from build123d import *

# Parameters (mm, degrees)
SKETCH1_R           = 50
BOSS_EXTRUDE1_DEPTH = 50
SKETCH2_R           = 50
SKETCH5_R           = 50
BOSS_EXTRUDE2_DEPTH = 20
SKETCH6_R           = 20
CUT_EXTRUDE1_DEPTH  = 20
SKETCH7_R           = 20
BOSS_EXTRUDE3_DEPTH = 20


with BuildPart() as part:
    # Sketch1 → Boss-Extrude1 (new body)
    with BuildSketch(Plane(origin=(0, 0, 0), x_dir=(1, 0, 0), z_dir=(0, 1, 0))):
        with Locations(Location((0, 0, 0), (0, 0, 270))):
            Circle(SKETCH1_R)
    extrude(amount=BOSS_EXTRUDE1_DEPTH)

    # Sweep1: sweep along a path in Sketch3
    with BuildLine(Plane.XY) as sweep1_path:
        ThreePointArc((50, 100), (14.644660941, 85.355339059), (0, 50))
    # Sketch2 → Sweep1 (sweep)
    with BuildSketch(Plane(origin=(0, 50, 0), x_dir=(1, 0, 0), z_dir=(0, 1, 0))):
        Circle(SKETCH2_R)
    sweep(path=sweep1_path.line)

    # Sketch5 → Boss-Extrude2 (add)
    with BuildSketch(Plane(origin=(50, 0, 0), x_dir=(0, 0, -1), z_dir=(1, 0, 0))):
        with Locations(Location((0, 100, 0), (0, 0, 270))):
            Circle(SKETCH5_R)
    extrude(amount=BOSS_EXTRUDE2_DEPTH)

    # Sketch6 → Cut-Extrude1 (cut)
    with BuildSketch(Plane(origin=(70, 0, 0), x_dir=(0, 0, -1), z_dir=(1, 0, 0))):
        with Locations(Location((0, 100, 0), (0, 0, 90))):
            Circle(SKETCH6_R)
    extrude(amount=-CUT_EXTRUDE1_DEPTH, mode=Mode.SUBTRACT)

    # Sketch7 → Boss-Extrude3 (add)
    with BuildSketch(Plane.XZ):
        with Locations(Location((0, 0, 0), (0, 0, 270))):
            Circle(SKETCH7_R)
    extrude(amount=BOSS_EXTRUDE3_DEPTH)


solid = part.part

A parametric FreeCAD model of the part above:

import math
import FreeCAD as App
import Part
import Sketcher

doc = App.newDocument("Part")
params = doc.addObject("Spreadsheet::Sheet", "Params")
for row, (alias, value) in enumerate([
    ("sketch1_diameter", "100 mm"),
    ("pad1_length", "50 mm"),
    ("sketch2_diameter", "100 mm"),
    ("sketch3_radius", "50 mm"),
    ("sketch4_diameter", "100 mm"),
    ("pad2_length", "20 mm"),
    ("sketch5_diameter", "40 mm"),
    ("pocket1_length", "20 mm"),
    ("sketch6_diameter", "40 mm"),
    ("pad3_length", "20 mm"),
], start=1):
    params.set(f"A{row}", alias)
    params.set(f"B{row}", "=" + value)
    params.setAlias(f"B{row}", alias)

body = doc.addObject("PartDesign::Body", "Body")

# Sketch on XZ plane
sketch1 = doc.addObject("Sketcher::SketchObject", "Sketch")
body.addObject(sketch1)
sketch1.AttachmentSupport = (doc.XZ_Plane, [""])
sketch1.MapMode = "FlatFace"
sketch1.addGeometry(Part.Circle(App.Vector(0, 0, 0), App.Vector(0, 0, 1), 50), False)
sketch1.addConstraint(Sketcher.Constraint("Coincident", 0, 3, -1, 1))
sketch1.addConstraint(Sketcher.Constraint("Diameter", 0, 100.0))
sketch1.setExpression("Constraints[1]", "Params.sketch1_diameter")
pad1 = doc.addObject("PartDesign::Pad", "Pad")
body.addObject(pad1)
pad1.Profile = sketch1
pad1.setExpression("Length", "Params.pad1_length")
pad1.Reversed = True

# Sketch on XZ plane
sketch2 = doc.addObject("Sketcher::SketchObject", "Sketch001")
body.addObject(sketch2)
sketch2.AttachmentSupport = (doc.XZ_Plane, [""])
sketch2.MapMode = "FlatFace"
sketch2.AttachmentOffset = App.Placement(App.Vector(0, 0, -50), App.Rotation())
sketch2.addGeometry(Part.Circle(App.Vector(0, 0, 0), App.Vector(0, 0, 1), 50), False)
sketch2.addConstraint(Sketcher.Constraint("Coincident", 0, 3, -1, 1))
sketch2.addConstraint(Sketcher.Constraint("Diameter", 0, 100.0))
sketch2.setExpression("Constraints[1]", "Params.sketch2_diameter")

# Sketch on XY plane
sketch3 = doc.addObject("Sketcher::SketchObject", "Sketch002")
body.addObject(sketch3)
sketch3.AttachmentSupport = (doc.XY_Plane, [""])
sketch3.MapMode = "FlatFace"
sketch3.addGeometry(Part.ArcOfCircle(Part.Circle(App.Vector(50, 50, 0), App.Vector(0, 0, 1), 50), math.radians(90), math.radians(180)), False)
sketch3.addConstraint(Sketcher.Constraint("PointOnObject", 0, 2, -2))
sketch3.addConstraint(Sketcher.Constraint("Radius", 0, 50.0))
sketch3.addConstraint(Sketcher.Constraint("DistanceY", -1, 1, 0, 3, 50.0))
sketch3.addConstraint(Sketcher.Constraint("DistanceX", -1, 1, 0, 1, 50.0))
sketch3.addConstraint(Sketcher.Constraint("DistanceY", -1, 1, 0, 2, 50.0))
sketch3.setExpression("Constraints[1]", "Params.sketch3_radius")
doc.recompute()

additivepipe = doc.addObject("PartDesign::AdditivePipe", "AdditivePipe")
body.addObject(additivepipe)
additivepipe.Profile = sketch2
additivepipe.Spine = (sketch3, ["Edge1"])

# Sketch on YZ plane
sketch4 = doc.addObject("Sketcher::SketchObject", "Sketch003")
body.addObject(sketch4)
sketch4.AttachmentSupport = (doc.YZ_Plane, [""])
sketch4.MapMode = "FlatFace"
sketch4.AttachmentOffset = App.Placement(App.Vector(0, 0, 50), App.Rotation())
sketch4.addGeometry(Part.Circle(App.Vector(100, 0, 0), App.Vector(0, 0, 1), 50), False)
sketch4.addConstraint(Sketcher.Constraint("PointOnObject", 0, 3, -1))
sketch4.addConstraint(Sketcher.Constraint("Diameter", 0, 100.0))
sketch4.addConstraint(Sketcher.Constraint("DistanceX", -1, 1, 0, 3, 100.0))
sketch4.setExpression("Constraints[1]", "Params.sketch4_diameter")
pad2 = doc.addObject("PartDesign::Pad", "Pad001")
body.addObject(pad2)
pad2.Profile = sketch4
pad2.setExpression("Length", "Params.pad2_length")

# Sketch on YZ plane
sketch5 = doc.addObject("Sketcher::SketchObject", "Sketch004")
body.addObject(sketch5)
sketch5.AttachmentSupport = (doc.YZ_Plane, [""])
sketch5.MapMode = "FlatFace"
sketch5.AttachmentOffset = App.Placement(App.Vector(0, 0, 70), App.Rotation())
sketch5.addGeometry(Part.Circle(App.Vector(100, 0, 0), App.Vector(0, 0, 1), 20), False)
sketch5.addConstraint(Sketcher.Constraint("PointOnObject", 0, 3, -1))
sketch5.addConstraint(Sketcher.Constraint("Diameter", 0, 40.0))
sketch5.addConstraint(Sketcher.Constraint("DistanceX", -1, 1, 0, 3, 100.0))
sketch5.setExpression("Constraints[1]", "Params.sketch5_diameter")
pocket1 = doc.addObject("PartDesign::Pocket", "Pocket")
body.addObject(pocket1)
pocket1.Profile = sketch5
pocket1.setExpression("Length", "Params.pocket1_length")

# Sketch on XZ plane
sketch6 = doc.addObject("Sketcher::SketchObject", "Sketch005")
body.addObject(sketch6)
sketch6.AttachmentSupport = (doc.XZ_Plane, [""])
sketch6.MapMode = "FlatFace"
sketch6.addGeometry(Part.Circle(App.Vector(0, 0, 0), App.Vector(0, 0, 1), 20), False)
sketch6.addConstraint(Sketcher.Constraint("Coincident", 0, 3, -1, 1))
sketch6.addConstraint(Sketcher.Constraint("Diameter", 0, 40.0))
sketch6.setExpression("Constraints[1]", "Params.sketch6_diameter")
pad3 = doc.addObject("PartDesign::Pad", "Pad002")
body.addObject(pad3)
pad3.Profile = sketch6
pad3.setExpression("Length", "Params.pad3_length")

doc.recompute()
